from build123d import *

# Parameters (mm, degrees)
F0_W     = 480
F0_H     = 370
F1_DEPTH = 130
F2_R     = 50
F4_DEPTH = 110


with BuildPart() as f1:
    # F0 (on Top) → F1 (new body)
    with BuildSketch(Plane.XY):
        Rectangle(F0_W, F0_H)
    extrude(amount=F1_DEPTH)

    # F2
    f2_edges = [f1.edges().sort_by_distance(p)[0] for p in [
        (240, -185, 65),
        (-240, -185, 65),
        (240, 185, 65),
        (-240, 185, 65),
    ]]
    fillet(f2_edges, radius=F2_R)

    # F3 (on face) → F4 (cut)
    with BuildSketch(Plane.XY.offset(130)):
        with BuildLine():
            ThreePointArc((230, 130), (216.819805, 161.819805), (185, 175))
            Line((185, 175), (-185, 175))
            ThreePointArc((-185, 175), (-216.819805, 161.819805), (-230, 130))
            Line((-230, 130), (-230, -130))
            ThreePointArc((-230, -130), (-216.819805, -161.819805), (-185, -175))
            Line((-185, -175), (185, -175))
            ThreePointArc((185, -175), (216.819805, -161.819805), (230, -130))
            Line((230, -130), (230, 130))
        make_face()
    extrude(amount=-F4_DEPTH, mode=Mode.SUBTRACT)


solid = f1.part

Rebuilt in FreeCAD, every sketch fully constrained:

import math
import FreeCAD as App
import Part
import Sketcher
from FreeCAD import Vector
Q = App.Units.Quantity


def edges_at(feature, points):
    """Names of the edges that pass closest to the given points."""
    edges = feature.Shape.Edges
    near = lambda p: min(range(len(edges)), key=lambda i: edges[i].distToShape(Part.Vertex(*p))[0])
    return sorted({f"Edge{near(p) + 1}" for p in points})

doc = App.newDocument("Part")
params = doc.addObject("Spreadsheet::Sheet", "Params")
for row, (alias, value) in enumerate([
    ("sketch1_width", "480 mm"),
    ("sketch1_height", "370 mm"),
    ("pad1_length", "130 mm"),
    ("fillet_radius", "50 mm"),
    ("sketch2_radius", "45.000001 mm"),
    ("sketch2_width", "370 mm"),
    ("sketch2_height", "260 mm"),
    ("pocket1_length", "110 mm"),
], start=1):
    params.set(f"A{row}", alias)
    params.set(f"B{row}", "=" + value)
    params.setAlias(f"B{row}", alias)

body = doc.addObject("PartDesign::Body", "Body")

sketch1 = body.newObject("Sketcher::SketchObject", "Sketch")
sketch1.AttachmentSupport = (doc.getObject("XY_Plane"), [""])
sketch1.MapMode = "FlatFace"
sketch1.addGeometry([
    Part.LineSegment(Vector(-240, 185, 0), Vector(-240, -185, 0)),
    Part.LineSegment(Vector(-240, -185, 0), Vector(240, -185, 0)),
    Part.LineSegment(Vector(240, -185, 0), Vector(240, 185, 0)),
    Part.LineSegment(Vector(240, 185, 0), Vector(-240, 185, 0)),
], False)
sketch1.addConstraint([
    Sketcher.Constraint("Coincident", 0, 2, 1, 1),
    Sketcher.Constraint("Coincident", 1, 2, 2, 1),
    Sketcher.Constraint("Coincident", 2, 2, 3, 1),
    Sketcher.Constraint("Coincident", 3, 2, 0, 1),
    Sketcher.Constraint("Vertical", 0),
    Sketcher.Constraint("Horizontal", 1),
    Sketcher.Constraint("Vertical", 2),
    Sketcher.Constraint("Horizontal", 3),
    Sketcher.Constraint("Symmetric", 0, 2, 2, 2, -1, 1),
    Sketcher.Constraint("DistanceX", 1, 1, 1, 2, Q("480 mm")),
    Sketcher.Constraint("DistanceY", 0, 2, 0, 1, Q("370 mm")),
])
sketch1.setExpression("Constraints[9]", "Params.sketch1_width")
sketch1.setExpression("Constraints[10]", "Params.sketch1_height")
pad1 = body.newObject("PartDesign::Pad", "Pad")
pad1.Profile = sketch1
pad1.setExpression("Length", "Params.pad1_length")
doc.recompute()

fillet = body.newObject("PartDesign::Fillet", "Fillet")
fillet.Base = (pad1, edges_at(pad1, [
    (240, -185, 65),
    (-240, -185, 65),
    (240, 185, 65),
    (-240, 185, 65),
]))
fillet.setExpression("Radius", "Params.fillet_radius")

sketch2 = body.newObject("Sketcher::SketchObject", "Sketch001")
sketch2.AttachmentSupport = (doc.getObject("XY_Plane"), [""])
sketch2.MapMode = "FlatFace"
sketch2.AttachmentOffset = App.Placement(Vector(0, 0, 130), App.Rotation())
sketch2.addGeometry([
    Part.ArcOfCircle(Part.Circle(Vector(185, 130, 0), Vector(0, 0, 1), 45), math.radians(0), math.radians(90)),
    Part.LineSegment(Vector(185, 175, 0), Vector(-185, 175, 0)),
    Part.ArcOfCircle(Part.Circle(Vector(-185, 130, 0), Vector(0, 0, 1), 45), math.radians(90), math.radians(180)),
    Part.LineSegment(Vector(-230, 130, 0), Vector(-230, -130, 0)),
    Part.ArcOfCircle(Part.Circle(Vector(-185, -130, 0), Vector(0, 0, 1), 45), math.radians(-180), math.radians(-90)),
    Part.LineSegment(Vector(-185, -175, 0), Vector(185, -175, 0)),
    Part.ArcOfCircle(Part.Circle(Vector(185, -130, 0), Vector(0, 0, 1), 45), math.radians(-90), math.radians(0)),
    Part.LineSegment(Vector(230, -130, 0), Vector(230, 130, 0)),
], False)
sketch2.addConstraint([
    Sketcher.Constraint("Tangent", 0, 2, 1, 1),
    Sketcher.Constraint("Tangent", 1, 2, 2, 1),
    Sketcher.Constraint("Tangent", 2, 2, 3, 1),
    Sketcher.Constraint("Tangent", 3, 2, 4, 1),
    Sketcher.Constraint("Tangent", 4, 2, 5, 1),
    Sketcher.Constraint("Tangent", 5, 2, 6, 1),
    Sketcher.Constraint("Tangent", 6, 2, 7, 1),
    Sketcher.Constraint("Tangent", 7, 2, 0, 1),
    Sketcher.Constraint("Horizontal", 1),
    Sketcher.Constraint("Vertical", 3),
    Sketcher.Constraint("Horizontal", 5),
    Sketcher.Constraint("Vertical", 7),
    Sketcher.Constraint("Equal", 0, 2),
    Sketcher.Constraint("Equal", 2, 4),
    Sketcher.Constraint("Equal", 4, 6),
    Sketcher.Constraint("Symmetric", 0, 3, 4, 3, -1, 1),
    Sketcher.Constraint("Radius", 0, Q("45.000001 mm")),
    Sketcher.Constraint("DistanceX", 1, 2, 1, 1, Q("370 mm")),
    Sketcher.Constraint("DistanceY", 3, 2, 3, 1, Q("260 mm")),
])
sketch2.setExpression("Constraints[16]", "Params.sketch2_radius")
sketch2.setExpression("Constraints[17]", "Params.sketch2_width")
sketch2.setExpression("Constraints[18]", "Params.sketch2_height")
pocket1 = body.newObject("PartDesign::Pocket", "Pocket")
pocket1.Profile = sketch2
pocket1.setExpression("Length", "Params.pocket1_length")

doc.recompute()
